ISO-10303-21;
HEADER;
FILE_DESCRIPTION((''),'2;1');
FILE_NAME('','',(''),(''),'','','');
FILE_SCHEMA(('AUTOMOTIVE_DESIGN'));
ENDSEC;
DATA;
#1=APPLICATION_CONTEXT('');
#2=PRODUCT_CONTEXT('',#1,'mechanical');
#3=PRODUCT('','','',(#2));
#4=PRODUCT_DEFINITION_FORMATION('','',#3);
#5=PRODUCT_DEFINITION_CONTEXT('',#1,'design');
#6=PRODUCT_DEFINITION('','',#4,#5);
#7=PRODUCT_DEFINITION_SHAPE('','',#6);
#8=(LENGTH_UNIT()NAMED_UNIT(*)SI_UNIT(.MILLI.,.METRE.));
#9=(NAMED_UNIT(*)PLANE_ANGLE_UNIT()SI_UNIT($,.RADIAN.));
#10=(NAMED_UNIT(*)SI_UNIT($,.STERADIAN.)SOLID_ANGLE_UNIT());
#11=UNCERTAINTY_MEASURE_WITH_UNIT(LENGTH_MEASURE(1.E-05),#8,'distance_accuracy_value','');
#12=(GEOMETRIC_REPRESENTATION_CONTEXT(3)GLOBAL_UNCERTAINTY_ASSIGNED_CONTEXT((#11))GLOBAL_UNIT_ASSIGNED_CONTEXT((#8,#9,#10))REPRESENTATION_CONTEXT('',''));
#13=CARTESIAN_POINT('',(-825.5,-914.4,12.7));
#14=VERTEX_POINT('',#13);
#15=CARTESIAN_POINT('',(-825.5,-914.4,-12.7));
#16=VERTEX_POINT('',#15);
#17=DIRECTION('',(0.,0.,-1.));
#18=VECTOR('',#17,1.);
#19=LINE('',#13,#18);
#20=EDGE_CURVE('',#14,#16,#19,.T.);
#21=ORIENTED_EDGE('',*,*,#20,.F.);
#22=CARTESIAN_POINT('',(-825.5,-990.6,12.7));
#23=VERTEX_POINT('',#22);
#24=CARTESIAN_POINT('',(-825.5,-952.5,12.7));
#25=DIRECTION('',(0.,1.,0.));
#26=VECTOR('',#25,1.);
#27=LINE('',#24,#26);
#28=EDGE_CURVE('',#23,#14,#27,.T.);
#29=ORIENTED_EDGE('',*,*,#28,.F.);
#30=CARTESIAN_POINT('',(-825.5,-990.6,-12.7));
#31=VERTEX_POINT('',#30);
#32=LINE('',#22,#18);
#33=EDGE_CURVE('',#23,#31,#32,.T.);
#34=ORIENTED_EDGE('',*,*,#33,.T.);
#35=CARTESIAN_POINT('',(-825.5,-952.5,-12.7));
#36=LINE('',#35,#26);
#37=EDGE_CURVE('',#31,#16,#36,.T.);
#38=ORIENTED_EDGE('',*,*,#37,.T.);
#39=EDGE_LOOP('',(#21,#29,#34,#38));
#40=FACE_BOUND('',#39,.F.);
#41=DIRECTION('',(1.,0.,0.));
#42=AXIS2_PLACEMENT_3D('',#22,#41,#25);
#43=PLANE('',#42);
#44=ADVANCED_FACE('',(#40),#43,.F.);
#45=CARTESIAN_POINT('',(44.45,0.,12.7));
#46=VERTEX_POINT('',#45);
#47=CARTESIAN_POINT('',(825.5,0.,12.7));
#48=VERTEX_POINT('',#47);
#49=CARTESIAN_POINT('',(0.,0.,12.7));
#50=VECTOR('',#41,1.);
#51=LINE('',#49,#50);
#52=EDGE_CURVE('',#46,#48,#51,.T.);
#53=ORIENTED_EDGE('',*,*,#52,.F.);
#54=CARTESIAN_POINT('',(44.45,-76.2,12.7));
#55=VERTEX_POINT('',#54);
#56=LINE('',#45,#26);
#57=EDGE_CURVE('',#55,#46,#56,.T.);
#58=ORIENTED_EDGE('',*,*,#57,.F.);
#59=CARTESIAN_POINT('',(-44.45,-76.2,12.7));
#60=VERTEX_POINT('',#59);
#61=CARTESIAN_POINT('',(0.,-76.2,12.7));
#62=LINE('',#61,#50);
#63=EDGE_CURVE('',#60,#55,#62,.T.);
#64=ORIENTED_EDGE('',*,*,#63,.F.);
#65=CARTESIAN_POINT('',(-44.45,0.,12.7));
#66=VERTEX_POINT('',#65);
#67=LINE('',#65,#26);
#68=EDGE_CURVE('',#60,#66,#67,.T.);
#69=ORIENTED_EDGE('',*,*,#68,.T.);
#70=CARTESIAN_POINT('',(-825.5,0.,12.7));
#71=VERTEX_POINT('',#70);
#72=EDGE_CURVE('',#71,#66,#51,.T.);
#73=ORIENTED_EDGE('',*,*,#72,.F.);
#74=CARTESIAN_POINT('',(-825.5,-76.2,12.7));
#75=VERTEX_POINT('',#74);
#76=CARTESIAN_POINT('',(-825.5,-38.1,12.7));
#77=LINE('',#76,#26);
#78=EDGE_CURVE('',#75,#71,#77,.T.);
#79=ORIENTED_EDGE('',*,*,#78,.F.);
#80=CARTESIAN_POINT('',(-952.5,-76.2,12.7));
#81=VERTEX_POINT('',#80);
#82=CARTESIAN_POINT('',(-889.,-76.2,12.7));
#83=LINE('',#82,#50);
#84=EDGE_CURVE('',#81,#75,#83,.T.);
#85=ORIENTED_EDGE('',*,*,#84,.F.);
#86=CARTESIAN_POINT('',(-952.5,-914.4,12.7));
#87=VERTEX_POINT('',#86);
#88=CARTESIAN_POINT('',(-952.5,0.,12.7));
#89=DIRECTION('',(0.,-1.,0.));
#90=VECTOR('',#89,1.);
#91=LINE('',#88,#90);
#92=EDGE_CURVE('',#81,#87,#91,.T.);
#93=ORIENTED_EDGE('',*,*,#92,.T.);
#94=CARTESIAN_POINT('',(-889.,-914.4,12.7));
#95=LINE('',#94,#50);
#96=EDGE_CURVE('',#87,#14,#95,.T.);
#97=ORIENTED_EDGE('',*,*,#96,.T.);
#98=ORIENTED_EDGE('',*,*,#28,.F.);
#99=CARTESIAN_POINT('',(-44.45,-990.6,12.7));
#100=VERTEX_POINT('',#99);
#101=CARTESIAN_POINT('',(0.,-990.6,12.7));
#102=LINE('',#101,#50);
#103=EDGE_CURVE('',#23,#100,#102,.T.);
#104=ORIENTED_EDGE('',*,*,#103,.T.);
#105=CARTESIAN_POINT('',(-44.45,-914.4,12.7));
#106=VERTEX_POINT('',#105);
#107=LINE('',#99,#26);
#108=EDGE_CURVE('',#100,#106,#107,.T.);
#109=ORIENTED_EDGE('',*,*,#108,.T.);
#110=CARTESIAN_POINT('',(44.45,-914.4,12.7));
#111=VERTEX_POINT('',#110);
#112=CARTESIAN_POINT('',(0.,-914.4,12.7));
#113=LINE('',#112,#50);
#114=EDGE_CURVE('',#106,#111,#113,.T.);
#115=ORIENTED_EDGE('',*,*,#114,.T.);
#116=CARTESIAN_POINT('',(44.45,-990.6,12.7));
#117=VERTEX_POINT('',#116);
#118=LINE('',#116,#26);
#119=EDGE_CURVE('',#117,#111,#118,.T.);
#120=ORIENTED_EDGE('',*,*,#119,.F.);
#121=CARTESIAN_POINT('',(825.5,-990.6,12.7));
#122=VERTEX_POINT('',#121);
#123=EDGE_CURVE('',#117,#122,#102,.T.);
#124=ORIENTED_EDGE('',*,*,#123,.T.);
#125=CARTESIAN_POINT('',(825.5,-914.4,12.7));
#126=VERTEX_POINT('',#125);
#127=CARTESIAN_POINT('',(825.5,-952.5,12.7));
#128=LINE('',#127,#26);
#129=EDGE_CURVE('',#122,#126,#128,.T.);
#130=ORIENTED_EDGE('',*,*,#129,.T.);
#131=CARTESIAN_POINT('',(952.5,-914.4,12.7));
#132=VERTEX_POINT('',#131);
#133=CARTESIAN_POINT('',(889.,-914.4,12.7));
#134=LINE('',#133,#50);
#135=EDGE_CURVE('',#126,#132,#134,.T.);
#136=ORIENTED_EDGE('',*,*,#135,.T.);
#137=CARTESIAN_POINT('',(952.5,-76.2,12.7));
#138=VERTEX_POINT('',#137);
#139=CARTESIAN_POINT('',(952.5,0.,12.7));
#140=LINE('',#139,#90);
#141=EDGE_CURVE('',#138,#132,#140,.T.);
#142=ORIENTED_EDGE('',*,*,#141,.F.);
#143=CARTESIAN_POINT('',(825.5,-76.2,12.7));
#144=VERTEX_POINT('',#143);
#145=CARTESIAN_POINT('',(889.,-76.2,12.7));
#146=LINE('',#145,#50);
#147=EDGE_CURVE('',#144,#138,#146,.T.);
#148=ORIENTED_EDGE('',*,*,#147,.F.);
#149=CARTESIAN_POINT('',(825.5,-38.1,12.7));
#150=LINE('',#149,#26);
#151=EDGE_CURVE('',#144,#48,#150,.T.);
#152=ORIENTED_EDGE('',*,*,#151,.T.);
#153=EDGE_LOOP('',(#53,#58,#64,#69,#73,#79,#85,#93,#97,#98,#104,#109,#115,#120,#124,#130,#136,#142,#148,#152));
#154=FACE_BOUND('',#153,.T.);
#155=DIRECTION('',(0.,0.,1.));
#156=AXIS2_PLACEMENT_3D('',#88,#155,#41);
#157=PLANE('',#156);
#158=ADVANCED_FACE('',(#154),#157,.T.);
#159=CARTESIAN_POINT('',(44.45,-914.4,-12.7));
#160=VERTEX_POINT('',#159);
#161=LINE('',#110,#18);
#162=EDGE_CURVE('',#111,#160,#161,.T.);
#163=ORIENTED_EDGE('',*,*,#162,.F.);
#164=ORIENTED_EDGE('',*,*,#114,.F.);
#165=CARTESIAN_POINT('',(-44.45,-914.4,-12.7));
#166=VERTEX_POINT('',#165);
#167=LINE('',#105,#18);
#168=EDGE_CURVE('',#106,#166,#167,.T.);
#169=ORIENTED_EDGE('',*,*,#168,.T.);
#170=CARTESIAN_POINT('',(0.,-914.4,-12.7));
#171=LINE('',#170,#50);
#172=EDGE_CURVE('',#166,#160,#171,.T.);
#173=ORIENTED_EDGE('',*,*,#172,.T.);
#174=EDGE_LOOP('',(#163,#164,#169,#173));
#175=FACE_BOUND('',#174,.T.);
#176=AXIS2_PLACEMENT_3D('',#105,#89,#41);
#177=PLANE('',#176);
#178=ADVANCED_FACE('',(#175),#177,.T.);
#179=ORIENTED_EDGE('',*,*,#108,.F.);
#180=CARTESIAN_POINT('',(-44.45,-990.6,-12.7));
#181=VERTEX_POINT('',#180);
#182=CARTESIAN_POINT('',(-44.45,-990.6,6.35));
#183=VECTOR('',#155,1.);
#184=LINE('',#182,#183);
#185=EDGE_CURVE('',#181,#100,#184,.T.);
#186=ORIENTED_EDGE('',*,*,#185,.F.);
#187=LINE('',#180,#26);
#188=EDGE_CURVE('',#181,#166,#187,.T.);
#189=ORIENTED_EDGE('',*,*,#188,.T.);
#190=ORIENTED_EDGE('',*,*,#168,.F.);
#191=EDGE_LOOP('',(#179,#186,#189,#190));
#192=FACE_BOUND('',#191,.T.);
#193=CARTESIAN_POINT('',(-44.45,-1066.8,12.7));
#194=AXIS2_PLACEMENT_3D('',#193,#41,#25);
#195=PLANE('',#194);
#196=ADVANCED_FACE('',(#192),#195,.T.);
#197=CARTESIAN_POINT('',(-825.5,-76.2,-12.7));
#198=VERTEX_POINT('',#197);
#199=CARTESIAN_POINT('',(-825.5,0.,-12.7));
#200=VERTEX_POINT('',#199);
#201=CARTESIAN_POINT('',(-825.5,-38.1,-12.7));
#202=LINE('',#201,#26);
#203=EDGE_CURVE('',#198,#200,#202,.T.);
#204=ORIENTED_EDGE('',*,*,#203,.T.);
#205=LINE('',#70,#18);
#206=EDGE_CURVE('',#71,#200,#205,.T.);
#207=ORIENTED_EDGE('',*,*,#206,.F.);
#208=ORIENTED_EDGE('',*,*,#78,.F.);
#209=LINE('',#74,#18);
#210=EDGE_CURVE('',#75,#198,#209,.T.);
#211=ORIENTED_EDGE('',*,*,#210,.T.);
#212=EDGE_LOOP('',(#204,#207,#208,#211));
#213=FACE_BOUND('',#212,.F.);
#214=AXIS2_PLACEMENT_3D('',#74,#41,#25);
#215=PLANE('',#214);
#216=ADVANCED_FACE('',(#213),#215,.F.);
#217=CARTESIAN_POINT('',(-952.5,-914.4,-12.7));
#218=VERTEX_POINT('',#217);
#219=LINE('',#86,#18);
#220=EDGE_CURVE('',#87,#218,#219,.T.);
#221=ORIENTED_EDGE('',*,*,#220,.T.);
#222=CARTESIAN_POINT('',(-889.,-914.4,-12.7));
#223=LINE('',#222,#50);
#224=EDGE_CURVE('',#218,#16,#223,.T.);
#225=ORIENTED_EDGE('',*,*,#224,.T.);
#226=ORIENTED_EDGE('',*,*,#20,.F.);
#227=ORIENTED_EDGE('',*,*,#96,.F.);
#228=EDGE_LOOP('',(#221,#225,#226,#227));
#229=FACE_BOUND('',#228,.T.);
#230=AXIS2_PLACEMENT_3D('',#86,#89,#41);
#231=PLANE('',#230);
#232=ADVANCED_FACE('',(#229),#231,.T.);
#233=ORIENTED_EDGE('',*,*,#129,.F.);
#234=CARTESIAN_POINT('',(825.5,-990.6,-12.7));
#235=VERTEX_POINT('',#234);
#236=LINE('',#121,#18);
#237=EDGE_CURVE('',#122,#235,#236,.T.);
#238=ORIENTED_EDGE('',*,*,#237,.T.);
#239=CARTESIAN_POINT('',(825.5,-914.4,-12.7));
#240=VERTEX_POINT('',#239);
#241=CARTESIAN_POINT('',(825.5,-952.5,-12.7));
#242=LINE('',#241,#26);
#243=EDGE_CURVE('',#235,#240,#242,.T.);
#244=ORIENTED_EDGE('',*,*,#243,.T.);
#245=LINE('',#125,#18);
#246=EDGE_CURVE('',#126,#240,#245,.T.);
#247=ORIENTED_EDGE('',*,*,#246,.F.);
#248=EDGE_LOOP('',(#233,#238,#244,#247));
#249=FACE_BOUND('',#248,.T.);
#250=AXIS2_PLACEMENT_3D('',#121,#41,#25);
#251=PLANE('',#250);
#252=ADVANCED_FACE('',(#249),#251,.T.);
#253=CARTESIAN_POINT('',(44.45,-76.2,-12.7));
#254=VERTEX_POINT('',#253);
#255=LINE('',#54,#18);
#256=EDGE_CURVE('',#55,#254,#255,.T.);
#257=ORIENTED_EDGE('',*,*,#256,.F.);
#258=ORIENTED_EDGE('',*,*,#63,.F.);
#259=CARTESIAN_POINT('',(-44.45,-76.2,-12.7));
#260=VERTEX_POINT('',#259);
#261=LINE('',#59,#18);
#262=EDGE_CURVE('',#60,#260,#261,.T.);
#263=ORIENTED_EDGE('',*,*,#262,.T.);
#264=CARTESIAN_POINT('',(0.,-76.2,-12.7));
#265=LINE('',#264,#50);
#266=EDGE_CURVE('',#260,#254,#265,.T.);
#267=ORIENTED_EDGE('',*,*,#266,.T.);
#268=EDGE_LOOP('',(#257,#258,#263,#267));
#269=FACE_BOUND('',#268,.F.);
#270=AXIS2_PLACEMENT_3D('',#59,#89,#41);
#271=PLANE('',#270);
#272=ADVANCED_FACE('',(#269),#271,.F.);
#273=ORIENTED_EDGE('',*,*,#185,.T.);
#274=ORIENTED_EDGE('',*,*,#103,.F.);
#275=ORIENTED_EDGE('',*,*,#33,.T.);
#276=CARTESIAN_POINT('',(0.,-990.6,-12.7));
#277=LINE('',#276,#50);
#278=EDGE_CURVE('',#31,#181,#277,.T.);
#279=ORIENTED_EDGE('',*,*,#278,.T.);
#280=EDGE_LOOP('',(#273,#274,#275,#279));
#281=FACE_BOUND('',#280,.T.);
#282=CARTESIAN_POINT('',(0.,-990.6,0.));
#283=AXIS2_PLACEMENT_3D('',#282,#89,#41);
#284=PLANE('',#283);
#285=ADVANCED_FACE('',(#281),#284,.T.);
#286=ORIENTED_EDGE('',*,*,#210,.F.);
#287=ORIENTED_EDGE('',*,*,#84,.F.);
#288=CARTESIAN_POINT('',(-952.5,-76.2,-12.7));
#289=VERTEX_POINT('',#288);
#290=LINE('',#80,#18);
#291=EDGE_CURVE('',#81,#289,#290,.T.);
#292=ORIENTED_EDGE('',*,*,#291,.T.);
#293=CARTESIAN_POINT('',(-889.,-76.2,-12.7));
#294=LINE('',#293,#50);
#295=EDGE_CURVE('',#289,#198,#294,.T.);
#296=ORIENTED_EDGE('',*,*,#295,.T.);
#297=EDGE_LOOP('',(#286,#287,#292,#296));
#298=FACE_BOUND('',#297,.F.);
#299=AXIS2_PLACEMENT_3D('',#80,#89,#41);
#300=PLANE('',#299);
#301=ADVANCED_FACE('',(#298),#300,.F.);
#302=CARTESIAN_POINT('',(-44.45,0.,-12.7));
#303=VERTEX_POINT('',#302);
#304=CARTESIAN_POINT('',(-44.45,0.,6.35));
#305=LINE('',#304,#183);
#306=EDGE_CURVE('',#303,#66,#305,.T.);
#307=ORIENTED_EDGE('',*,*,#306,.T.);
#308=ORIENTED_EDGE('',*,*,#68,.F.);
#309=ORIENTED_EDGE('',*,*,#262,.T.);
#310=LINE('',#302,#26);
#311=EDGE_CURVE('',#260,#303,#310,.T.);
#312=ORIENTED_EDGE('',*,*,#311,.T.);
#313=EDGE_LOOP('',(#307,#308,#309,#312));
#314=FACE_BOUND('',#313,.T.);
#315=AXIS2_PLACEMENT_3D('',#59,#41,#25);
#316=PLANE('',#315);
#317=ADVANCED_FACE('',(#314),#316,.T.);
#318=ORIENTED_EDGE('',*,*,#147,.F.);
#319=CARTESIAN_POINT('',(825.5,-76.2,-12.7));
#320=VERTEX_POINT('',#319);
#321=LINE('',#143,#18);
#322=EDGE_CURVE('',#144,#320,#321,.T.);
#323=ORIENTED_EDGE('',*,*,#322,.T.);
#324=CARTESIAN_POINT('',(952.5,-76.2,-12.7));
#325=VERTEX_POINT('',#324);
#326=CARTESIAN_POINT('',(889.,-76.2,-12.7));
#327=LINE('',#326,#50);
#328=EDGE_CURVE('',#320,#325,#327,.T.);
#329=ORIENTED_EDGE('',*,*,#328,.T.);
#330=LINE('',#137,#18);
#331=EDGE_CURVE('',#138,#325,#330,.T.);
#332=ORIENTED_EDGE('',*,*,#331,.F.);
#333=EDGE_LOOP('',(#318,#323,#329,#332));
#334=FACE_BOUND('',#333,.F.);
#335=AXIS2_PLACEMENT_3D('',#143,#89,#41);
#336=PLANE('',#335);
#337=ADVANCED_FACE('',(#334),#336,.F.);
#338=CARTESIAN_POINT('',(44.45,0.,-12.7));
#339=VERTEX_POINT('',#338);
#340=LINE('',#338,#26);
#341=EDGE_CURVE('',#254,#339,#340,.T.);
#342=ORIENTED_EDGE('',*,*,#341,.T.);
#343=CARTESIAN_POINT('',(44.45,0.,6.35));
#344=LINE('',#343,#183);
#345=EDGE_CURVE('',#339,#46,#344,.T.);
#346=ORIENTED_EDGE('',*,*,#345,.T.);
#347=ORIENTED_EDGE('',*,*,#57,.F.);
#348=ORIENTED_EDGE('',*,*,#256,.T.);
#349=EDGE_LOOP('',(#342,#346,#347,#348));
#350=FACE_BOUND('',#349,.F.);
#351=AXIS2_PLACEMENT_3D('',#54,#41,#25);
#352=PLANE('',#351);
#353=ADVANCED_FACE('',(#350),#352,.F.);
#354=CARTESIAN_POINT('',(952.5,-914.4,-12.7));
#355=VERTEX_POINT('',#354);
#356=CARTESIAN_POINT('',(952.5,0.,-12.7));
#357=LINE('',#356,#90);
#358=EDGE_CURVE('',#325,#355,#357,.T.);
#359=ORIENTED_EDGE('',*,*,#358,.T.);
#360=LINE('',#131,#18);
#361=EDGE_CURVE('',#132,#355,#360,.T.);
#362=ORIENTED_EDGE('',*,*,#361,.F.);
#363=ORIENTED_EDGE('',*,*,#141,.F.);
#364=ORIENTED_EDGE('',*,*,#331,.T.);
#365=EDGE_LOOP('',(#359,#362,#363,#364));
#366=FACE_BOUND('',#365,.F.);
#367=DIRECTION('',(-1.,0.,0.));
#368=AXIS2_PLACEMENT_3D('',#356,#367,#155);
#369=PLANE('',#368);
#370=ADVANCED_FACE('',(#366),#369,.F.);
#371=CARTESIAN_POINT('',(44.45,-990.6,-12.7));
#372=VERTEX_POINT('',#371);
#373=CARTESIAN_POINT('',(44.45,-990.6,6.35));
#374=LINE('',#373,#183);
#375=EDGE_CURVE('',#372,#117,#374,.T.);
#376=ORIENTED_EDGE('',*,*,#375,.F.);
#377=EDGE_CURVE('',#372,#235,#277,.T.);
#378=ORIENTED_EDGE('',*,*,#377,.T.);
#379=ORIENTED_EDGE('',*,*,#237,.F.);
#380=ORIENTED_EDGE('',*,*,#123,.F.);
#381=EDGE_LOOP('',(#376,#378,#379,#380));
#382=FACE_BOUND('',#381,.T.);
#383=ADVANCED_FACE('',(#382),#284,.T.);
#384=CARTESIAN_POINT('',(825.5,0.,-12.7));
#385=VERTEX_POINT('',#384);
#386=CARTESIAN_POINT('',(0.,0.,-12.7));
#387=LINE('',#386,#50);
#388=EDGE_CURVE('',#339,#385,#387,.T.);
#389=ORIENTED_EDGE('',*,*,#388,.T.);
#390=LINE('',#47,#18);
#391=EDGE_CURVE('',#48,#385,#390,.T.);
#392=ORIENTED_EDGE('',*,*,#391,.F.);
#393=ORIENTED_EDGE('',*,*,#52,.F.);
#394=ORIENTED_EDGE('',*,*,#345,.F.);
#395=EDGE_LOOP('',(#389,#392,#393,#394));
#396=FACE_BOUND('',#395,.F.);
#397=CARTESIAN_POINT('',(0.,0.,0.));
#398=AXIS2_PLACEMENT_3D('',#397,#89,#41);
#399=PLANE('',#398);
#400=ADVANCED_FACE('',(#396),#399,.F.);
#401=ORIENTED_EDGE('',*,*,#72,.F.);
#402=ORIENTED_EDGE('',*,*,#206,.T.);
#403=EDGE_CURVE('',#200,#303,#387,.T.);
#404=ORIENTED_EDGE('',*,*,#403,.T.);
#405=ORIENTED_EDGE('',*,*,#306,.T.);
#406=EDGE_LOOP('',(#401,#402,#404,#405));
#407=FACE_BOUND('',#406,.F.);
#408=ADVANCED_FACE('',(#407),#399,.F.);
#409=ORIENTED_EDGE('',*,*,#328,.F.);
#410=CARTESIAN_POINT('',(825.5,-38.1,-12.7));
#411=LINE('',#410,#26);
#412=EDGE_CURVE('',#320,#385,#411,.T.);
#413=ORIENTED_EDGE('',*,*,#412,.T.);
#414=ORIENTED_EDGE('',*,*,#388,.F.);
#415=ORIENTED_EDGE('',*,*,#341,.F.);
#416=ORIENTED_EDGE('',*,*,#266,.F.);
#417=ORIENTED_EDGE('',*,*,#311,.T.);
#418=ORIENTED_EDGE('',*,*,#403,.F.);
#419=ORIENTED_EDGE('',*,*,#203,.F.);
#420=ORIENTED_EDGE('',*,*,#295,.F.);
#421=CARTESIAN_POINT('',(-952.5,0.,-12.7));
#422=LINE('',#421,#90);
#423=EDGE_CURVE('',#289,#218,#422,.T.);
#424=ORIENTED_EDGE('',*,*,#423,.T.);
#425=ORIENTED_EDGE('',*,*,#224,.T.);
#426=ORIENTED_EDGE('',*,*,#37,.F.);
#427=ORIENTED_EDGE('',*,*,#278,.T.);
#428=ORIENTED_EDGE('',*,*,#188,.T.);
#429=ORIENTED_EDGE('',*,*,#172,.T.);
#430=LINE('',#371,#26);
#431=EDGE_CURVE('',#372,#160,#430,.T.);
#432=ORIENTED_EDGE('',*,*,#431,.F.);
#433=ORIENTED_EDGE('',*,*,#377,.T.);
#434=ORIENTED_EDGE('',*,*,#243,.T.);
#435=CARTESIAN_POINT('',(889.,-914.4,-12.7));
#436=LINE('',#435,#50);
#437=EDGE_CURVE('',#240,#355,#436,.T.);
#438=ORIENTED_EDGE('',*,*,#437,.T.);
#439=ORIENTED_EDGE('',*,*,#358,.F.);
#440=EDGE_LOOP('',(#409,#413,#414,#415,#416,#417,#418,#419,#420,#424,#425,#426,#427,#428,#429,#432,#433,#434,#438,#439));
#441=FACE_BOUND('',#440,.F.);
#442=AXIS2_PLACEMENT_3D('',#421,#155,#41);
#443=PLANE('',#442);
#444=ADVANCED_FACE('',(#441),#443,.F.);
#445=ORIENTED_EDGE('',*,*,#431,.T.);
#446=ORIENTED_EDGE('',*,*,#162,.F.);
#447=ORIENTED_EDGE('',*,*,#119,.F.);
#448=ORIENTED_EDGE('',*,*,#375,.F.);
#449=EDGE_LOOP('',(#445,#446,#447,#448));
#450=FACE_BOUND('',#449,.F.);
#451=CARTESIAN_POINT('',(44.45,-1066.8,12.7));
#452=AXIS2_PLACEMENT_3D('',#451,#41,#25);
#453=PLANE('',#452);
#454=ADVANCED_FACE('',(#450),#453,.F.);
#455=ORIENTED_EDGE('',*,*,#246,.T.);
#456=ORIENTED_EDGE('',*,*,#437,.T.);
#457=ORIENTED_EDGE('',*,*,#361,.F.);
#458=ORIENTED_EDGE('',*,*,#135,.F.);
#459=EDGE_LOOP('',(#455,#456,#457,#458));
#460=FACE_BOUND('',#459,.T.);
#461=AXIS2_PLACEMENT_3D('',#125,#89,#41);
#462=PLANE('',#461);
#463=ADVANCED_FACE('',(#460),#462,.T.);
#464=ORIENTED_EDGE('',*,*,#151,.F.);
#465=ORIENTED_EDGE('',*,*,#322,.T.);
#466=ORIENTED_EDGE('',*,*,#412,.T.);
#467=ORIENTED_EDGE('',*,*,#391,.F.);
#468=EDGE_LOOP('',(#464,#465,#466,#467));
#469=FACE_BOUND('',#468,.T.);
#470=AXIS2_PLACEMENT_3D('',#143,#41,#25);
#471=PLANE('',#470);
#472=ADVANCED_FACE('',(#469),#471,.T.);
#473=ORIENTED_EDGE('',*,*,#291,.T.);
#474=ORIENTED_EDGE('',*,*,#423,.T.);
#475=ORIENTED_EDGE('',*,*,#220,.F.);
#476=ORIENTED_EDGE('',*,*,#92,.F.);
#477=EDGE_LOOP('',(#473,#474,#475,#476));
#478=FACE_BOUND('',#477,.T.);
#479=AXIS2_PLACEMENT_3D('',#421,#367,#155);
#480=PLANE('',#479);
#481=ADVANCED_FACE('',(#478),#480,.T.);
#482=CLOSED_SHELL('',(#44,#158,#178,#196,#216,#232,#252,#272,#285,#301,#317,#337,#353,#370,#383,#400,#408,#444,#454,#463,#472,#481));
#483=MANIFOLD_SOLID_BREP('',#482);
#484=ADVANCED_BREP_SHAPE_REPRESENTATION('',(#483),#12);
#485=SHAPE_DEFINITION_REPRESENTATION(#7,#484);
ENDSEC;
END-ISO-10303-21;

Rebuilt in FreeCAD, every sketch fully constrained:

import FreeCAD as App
import Part
import Sketcher

V = App.Vector
Q = App.Units.Quantity


def add_polygon(sketch, points):
    """Adds a closed chain of lines whose ends are joined by coincident constraints."""
    first, n = sketch.GeometryCount, len(points)
    for a, b in zip(points, points[1:] + points[:1]):
        sketch.addGeometry(Part.LineSegment(App.Vector(*a, 0), App.Vector(*b, 0)), False)
    for i in range(n):
        sketch.addConstraint(Sketcher.Constraint("Coincident", first + i, 2, first + (i + 1) % n, 1))

doc = App.newDocument("Part")
body = doc.addObject("PartDesign::Body", "Body")

# Sketch on XZ plane
sketch1 = body.newObject("Sketcher::SketchObject", "Sketch")
sketch1.AttachmentSupport = (doc.getObject("XZ_Plane"), [""])
sketch1.MapMode = "FlatFace"
add_polygon(sketch1, [(-952.5, 12.7), (-952.5, -12.7), (952.5, -12.7), (952.5, 12.7)])  # lines 0-3
sketch1.addConstraint([
    Sketcher.Constraint("Vertical", 0),
    Sketcher.Constraint("Horizontal", 1),
    Sketcher.Constraint("Vertical", 2),
    Sketcher.Constraint("Horizontal", 3),
    Sketcher.Constraint("Symmetric", 0, 2, 2, 2, -1, 1),
    Sketcher.Constraint("DistanceX", 1, 1, 1, 2, Q("75 in")),
    Sketcher.Constraint("DistanceY", 0, 2, 0, 1, Q("1 in")),
])
pad1 = body.newObject("PartDesign::Pad", "Pad")
pad1.Profile = sketch1
pad1.Length = Q("39 in")

# Sketch on XY plane
sketch2 = body.newObject("Sketcher::SketchObject", "Sketch001")
sketch2.AttachmentSupport = (doc.getObject("XY_Plane"), [""])
sketch2.MapMode = "FlatFace"
sketch2.AttachmentOffset = App.Placement(V(0, 0, 0.5 * 25.4), App.Rotation())
add_polygon(sketch2, [(-952.5, 0), (-952.5, -76.2), (-825.5, -76.2), (-825.5, 0)])  # lines 0-3
add_polygon(sketch2, [(-952.5, -914.4), (-952.5, -990.6), (-825.5, -990.6), (-825.5, -914.4)])  # lines 4-7
add_polygon(sketch2, [(825.5, -914.4), (825.5, -990.6), (952.5, -990.6), (952.5, -914.4)])  # lines 8-11
add_polygon(sketch2, [(825.5, 0), (825.5, -76.2), (952.5, -76.2), (952.5, 0)])  # lines 12-15
add_polygon(sketch2, [(-44.45, 76.2), (-44.45, -76.2), (44.45, -76.2), (44.45, 76.2)])  # lines 16-19
add_polygon(sketch2, [(-44.45, -914.4), (-44.45, -1066.8), (44.45, -1066.8), (44.45, -914.4)])  # lines 20-23
sketch2.addConstraint([
    Sketcher.Constraint("Vertical", 0),
    Sketcher.Constraint("Horizontal", 1),
    Sketcher.Constraint("Vertical", 2),
    Sketcher.Constraint("Horizontal", 3),
    Sketcher.Constraint("Vertical", 4),
    Sketcher.Constraint("Horizontal", 5),
    Sketcher.Constraint("Vertical", 6),
    Sketcher.Constraint("Horizontal", 7),
    Sketcher.Constraint("Vertical", 8),
    Sketcher.Constraint("Horizontal", 9),
    Sketcher.Constraint("Vertical", 10),
    Sketcher.Constraint("Horizontal", 11),
    Sketcher.Constraint("Vertical", 12),
    Sketcher.Constraint("Horizontal", 13),
    Sketcher.Constraint("Vertical", 14),
    Sketcher.Constraint("Horizontal", 15),
    Sketcher.Constraint("Vertical", 16),
    Sketcher.Constraint("Horizontal", 17),
    Sketcher.Constraint("Vertical", 18),
    Sketcher.Constraint("Horizontal", 19),
    Sketcher.Constraint("Vertical", 20),
    Sketcher.Constraint("Horizontal", 21),
    Sketcher.Constraint("Vertical", 22),
    Sketcher.Constraint("Horizontal", 23),
    Sketcher.Constraint("Symmetric", 3, 2, 14, 2, -1, 1),
    Sketcher.Constraint("Symmetric", 16, 2, 18, 2, -1, 1),
    Sketcher.Constraint("Symmetric", 5, 2, 8, 2, -2),
    Sketcher.Constraint("Symmetric", 7, 2, 10, 2, -2),
    Sketcher.Constraint("Symmetric", 1, 2, 12, 2, -2),
    Sketcher.Constraint("PointOnObject", 2, 2, -1),
    Sketcher.Constraint("Horizontal", 13, 2, 16, 2),
    Sketcher.Constraint("Horizontal", 11, 2, 22, 2),
    Sketcher.Constraint("Vertical", 3, 2, 4, 2),
    Sketcher.Constraint("Vertical", 2, 2, 5, 2),
    Sketcher.Constraint("Vertical", 19, 2, 20, 2),
    Sketcher.Constraint("Vertical", 18, 2, 21, 2),
    Sketcher.Constraint("Equal", 2, 4),
    Sketcher.Constraint("Equal", 18, 20),
    Sketcher.Constraint("DistanceX", 1, 1, 1, 2, Q("5 in")),
    Sketcher.Constraint("DistanceY", 0, 2, 0, 1, Q("3 in")),
    Sketcher.Constraint("DistanceX", 17, 1, 17, 2, Q("3.5 in")),
    Sketcher.Constraint("DistanceY", 4, 2, -1, 1, Q("39 in")),
    Sketcher.Constraint("DistanceX", 5, 2, 8, 2, Q("65 in")),
])
pocket1 = body.newObject("PartDesign::Pocket", "Pocket")
pocket1.Profile = sketch2
pocket1.Length = Q("1 in")

doc.recompute()
